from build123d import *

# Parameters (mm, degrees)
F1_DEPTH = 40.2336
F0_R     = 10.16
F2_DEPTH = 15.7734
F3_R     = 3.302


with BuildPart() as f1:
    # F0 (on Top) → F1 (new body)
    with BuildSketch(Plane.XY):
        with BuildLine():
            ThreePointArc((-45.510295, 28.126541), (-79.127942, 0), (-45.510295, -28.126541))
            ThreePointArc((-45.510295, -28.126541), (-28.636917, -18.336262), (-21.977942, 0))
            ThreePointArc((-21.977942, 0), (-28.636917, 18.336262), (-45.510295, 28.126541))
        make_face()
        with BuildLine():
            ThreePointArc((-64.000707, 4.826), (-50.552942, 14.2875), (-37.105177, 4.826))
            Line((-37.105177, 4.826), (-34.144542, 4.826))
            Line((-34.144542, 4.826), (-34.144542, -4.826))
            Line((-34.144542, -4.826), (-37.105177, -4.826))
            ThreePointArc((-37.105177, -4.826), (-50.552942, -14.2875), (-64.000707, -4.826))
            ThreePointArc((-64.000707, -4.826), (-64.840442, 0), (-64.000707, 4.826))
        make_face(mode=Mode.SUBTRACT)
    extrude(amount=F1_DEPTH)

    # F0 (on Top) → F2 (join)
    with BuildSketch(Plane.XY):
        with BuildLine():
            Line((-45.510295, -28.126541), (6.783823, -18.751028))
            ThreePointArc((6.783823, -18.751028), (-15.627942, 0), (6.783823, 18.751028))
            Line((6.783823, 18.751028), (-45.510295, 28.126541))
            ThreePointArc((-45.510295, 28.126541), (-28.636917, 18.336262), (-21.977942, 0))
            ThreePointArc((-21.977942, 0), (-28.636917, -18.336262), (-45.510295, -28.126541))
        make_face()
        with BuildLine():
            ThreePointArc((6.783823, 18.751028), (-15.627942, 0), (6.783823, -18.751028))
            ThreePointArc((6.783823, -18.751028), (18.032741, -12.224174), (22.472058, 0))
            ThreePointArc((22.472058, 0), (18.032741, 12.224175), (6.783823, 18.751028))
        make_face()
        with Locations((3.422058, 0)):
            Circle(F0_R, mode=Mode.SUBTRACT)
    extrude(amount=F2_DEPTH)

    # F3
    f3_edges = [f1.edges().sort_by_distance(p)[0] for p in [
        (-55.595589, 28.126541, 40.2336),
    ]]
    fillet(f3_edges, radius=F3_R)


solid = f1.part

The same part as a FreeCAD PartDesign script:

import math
import FreeCAD as App
import Part
import Sketcher
Q = App.Units.Quantity


def edges_at(feature, points):
    """Names of the edges that pass closest to the given points."""
    edges = feature.Shape.Edges
    near = lambda p: min(range(len(edges)), key=lambda i: edges[i].distToShape(Part.Vertex(*p))[0])
    return sorted({f"Edge{near(p) + 1}" for p in points})

doc = App.newDocument("Part")
body = doc.addObject("PartDesign::Body", "Body")

# Sketch on XY plane
sketch1 = body.newObject("Sketcher::SketchObject", "Sketch")
sketch1.AttachmentSupport = (doc.getObject("XY_Plane"), [""])
sketch1.MapMode = "FlatFace"
sketch1.addGeometry(Part.ArcOfCircle(Part.Circle(App.Vector(-50.6, 0, 0), App.Vector(0, 0, 1), 28.6), math.radians(80), math.radians(280)), False)
sketch1.addGeometry(Part.ArcOfCircle(Part.Circle(App.Vector(-50.6, 0, 0), App.Vector(0, 0, 1), 28.6), math.radians(-80), math.radians(0)), False)
sketch1.addGeometry(Part.ArcOfCircle(Part.Circle(App.Vector(-50.6, 0, 0), App.Vector(0, 0, 1), 28.6), math.radians(0), math.radians(80)), False)
sketch1.addGeometry(Part.ArcOfCircle(Part.Circle(App.Vector(-50.6, 0, 0), App.Vector(0, 0, 1), 14.3), math.radians(160), math.radians(200)), False)
sketch1.addGeometry(Part.ArcOfCircle(Part.Circle(App.Vector(-50.6, 0, 0), App.Vector(0, 0, 1), 14.3), math.radians(20), math.radians(160)), False)
sketch1.addGeometry(Part.LineSegment(App.Vector(-37.1, 4.8, 0), App.Vector(-34.1, 4.8, 0)), False)
sketch1.addGeometry(Part.LineSegment(App.Vector(-34.1, 4.8, 0), App.Vector(-34.1, -4.8, 0)), False)
sketch1.addGeometry(Part.LineSegment(App.Vector(-34.1, -4.8, 0), App.Vector(-37.1, -4.8, 0)), False)
sketch1.addGeometry(Part.ArcOfCircle(Part.Circle(App.Vector(-50.6, 0, 0), App.Vector(0, 0, 1), 14.3), math.radians(-160), math.radians(-20)), False)
sketch1.addConstraint(Sketcher.Constraint("Tangent", 0, 2, 1, 1))
sketch1.addConstraint(Sketcher.Constraint("Tangent", 1, 2, 2, 1))
sketch1.addConstraint(Sketcher.Constraint("Tangent", 2, 2, 0, 1))
sketch1.addConstraint(Sketcher.Constraint("Tangent", 3, 1, 4, 2))
sketch1.addConstraint(Sketcher.Constraint("Coincident", 4, 1, 5, 1))
sketch1.addConstraint(Sketcher.Constraint("Coincident", 5, 2, 6, 1))
sketch1.addConstraint(Sketcher.Constraint("Coincident", 6, 2, 7, 1))
sketch1.addConstraint(Sketcher.Constraint("Coincident", 7, 2, 8, 2))
sketch1.addConstraint(Sketcher.Constraint("Tangent", 8, 1, 3, 2))
sketch1.addConstraint(Sketcher.Constraint("Horizontal", 5))
sketch1.addConstraint(Sketcher.Constraint("Vertical", 6))
sketch1.addConstraint(Sketcher.Constraint("Horizontal", 7))
sketch1.addConstraint(Sketcher.Constraint("Coincident", 3, 3, 0, 3))
sketch1.addConstraint(Sketcher.Constraint("Equal", 3, 4))
sketch1.addConstraint(Sketcher.Constraint("Equal", 4, 8))
sketch1.addConstraint(Sketcher.Constraint("Symmetric", 0, 2, 2, 2, -1))
sketch1.addConstraint(Sketcher.Constraint("PointOnObject", 1, 2, -1))
sketch1.addConstraint(Sketcher.Constraint("Horizontal", 3, 1, 4, 1))
sketch1.addConstraint(Sketcher.Constraint("Horizontal", 7, 2, 8, 1))
sketch1.addConstraint(Sketcher.Constraint("Vertical", 4, 1, 7, 2))
sketch1.addConstraint(Sketcher.Constraint("Radius", 0, Q("1.125 in")))
sketch1.addConstraint(Sketcher.Constraint("Radius", 3, Q("0.5625001 in")))
sketch1.addConstraint(Sketcher.Constraint("DistanceY", 6, 2, 6, 1, Q("0.38 in")))
sketch1.addConstraint(Sketcher.Constraint("DistanceX", 5, 2, 1, 2, Q("0.479 in")))
sketch1.addConstraint(Sketcher.Constraint("DistanceX", 1, 3, -1, 1, 50.552939))
sketch1.addConstraint(Sketcher.Constraint("DistanceY", 0, 2, -1, 1, 28.126541))
pad1 = body.newObject("PartDesign::Pad", "Pad")
pad1.Profile = sketch1
pad1.Length = Q("1.584 in")

# Sketch on XY plane
sketch2 = body.newObject("Sketcher::SketchObject", "Sketch001")
sketch2.AttachmentSupport = (doc.getObject("XY_Plane"), [""])
sketch2.MapMode = "FlatFace"
sketch2.addGeometry(Part.LineSegment(App.Vector(-46, -28, 0), App.Vector(7, -19, 0)), False)
sketch2.addGeometry(Part.ArcOfCircle(Part.Circle(App.Vector(3, 0, 0), App.Vector(0, 0, 1), 19), math.radians(-80), math.radians(0)), False)
sketch2.addGeometry(Part.ArcOfCircle(Part.Circle(App.Vector(3, 0, 0), App.Vector(0, 0, 1), 19), math.radians(0), math.radians(80)), False)
sketch2.addGeometry(Part.LineSegment(App.Vector(7, 19, 0), App.Vector(-46, 28, 0)), False)
sketch2.addGeometry(Part.ArcOfCircle(Part.Circle(App.Vector(-51, 0, 0), App.Vector(0, 0, 1), 29), math.radians(0), math.radians(80)), False)
sketch2.addGeometry(Part.ArcOfCircle(Part.Circle(App.Vector(-51, 0, 0), App.Vector(0, 0, 1), 29), math.radians(-80), math.radians(0)), False)
sketch2.addGeometry(Part.Circle(App.Vector(3, 0, 0), App.Vector(0, 0, 1), 10), False)
sketch2.addConstraint(Sketcher.Constraint("Tangent", 0, 2, 1, 1))
sketch2.addConstraint(Sketcher.Constraint("Tangent", 1, 2, 2, 1))
sketch2.addConstraint(Sketcher.Constraint("Tangent", 2, 2, 3, 1))
sketch2.addConstraint(Sketcher.Constraint("Tangent", 3, 2, 4, 2))
sketch2.addConstraint(Sketcher.Constraint("Tangent", 4, 1, 5, 2))
sketch2.addConstraint(Sketcher.Constraint("Tangent", 5, 1, 0, 1))
sketch2.addConstraint(Sketcher.Constraint("Coincident", 6, 3, 1, 3))
sketch2.addConstraint(Sketcher.Constraint("Equal", 4, 5))
sketch2.addConstraint(Sketcher.Constraint("Symmetric", 0, 2, 2, 2, -1))
sketch2.addConstraint(Sketcher.Constraint("PointOnObject", 1, 3, -1))
sketch2.addConstraint(Sketcher.Constraint("PointOnObject", 1, 2, -1))
sketch2.addConstraint(Sketcher.Constraint("PointOnObject", 4, 1, -1))
sketch2.addConstraint(Sketcher.Constraint("Diameter", 6, Q("0.8 in")))
sketch2.addConstraint(Sketcher.Constraint("Radius", 1, Q("0.7500001 in")))
sketch2.addConstraint(Sketcher.Constraint("Radius", 4, Q("1.1249999 in")))
sketch2.addConstraint(Sketcher.Constraint("DistanceX", 4, 1, 1, 3, Q("0.9999999 in")))
sketch2.addConstraint(Sketcher.Constraint("DistanceX", -1, 1, 2, 3, 3.422058))
pad2 = body.newObject("PartDesign::Pad", "Pad001")
pad2.Profile = sketch2
pad2.Length = Q("0.621 in")
doc.recompute()

fillet = body.newObject("PartDesign::Fillet", "Fillet")
fillet.Base = (pad2, edges_at(pad2, [(-79.128, 0, 40.234)]))
fillet.Radius = Q("0.13 in")

doc.recompute()
